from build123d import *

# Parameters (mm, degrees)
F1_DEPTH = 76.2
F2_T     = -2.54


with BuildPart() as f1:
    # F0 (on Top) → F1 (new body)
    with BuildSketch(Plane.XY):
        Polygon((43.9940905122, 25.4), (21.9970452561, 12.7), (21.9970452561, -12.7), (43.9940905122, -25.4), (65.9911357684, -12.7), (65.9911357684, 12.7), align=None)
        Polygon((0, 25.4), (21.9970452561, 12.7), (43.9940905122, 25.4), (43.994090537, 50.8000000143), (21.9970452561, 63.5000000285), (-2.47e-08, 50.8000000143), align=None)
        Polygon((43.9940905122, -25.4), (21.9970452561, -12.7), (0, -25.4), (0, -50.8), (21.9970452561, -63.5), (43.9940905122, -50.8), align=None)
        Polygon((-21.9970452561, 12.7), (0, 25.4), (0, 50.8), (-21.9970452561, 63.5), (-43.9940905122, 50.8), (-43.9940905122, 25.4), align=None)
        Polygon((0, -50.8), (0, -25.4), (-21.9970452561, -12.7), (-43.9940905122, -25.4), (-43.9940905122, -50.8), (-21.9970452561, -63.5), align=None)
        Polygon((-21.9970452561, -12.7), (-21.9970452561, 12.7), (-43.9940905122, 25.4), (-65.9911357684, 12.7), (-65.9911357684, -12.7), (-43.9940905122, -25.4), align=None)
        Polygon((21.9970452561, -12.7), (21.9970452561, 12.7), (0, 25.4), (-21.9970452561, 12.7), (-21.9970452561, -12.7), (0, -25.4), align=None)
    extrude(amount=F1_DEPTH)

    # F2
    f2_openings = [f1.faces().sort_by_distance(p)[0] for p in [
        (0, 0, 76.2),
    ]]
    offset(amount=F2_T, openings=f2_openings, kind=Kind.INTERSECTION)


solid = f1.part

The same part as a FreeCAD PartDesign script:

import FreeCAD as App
import Part
import Sketcher
from FreeCAD import Vector
Q = App.Units.Quantity


def faces_at(feature, points):
    """Names of the faces that lie closest to the given points."""
    faces = feature.Shape.Faces
    near = lambda p: min(range(len(faces)), key=lambda i: faces[i].distToShape(Part.Vertex(*p))[0])
    return sorted({f"Face{near(p) + 1}" for p in points})

doc = App.newDocument("Part")
body = doc.addObject("PartDesign::Body", "Body")

# Sketch on XY plane
sketch1 = doc.addObject("Sketcher::SketchObject", "Sketch")
body.addObject(sketch1)
sketch1.AttachmentSupport = (doc.XY_Plane, [""])
sketch1.MapMode = "FlatFace"
sketch1.addGeometry(Part.LineSegment(Vector(-44, -25, 0), Vector(-44, -51, 0)), False)
sketch1.addGeometry(Part.LineSegment(Vector(-44, -51, 0), Vector(-22, -64, 0)), False)
sketch1.addGeometry(Part.LineSegment(Vector(-22, -64, 0), Vector(0, -51, 0)), False)
sketch1.addGeometry(Part.LineSegment(Vector(0, -51, 0), Vector(22, -64, 0)), False)
sketch1.addGeometry(Part.LineSegment(Vector(22, -64, 0), Vector(44, -51, 0)), False)
sketch1.addGeometry(Part.LineSegment(Vector(44, -51, 0), Vector(44, -25, 0)), False)
sketch1.addGeometry(Part.LineSegment(Vector(44, -25, 0), Vector(66, -13, 0)), False)
sketch1.addGeometry(Part.LineSegment(Vector(66, -13, 0), Vector(66, 13, 0)), False)
sketch1.addGeometry(Part.LineSegment(Vector(66, 13, 0), Vector(44, 25, 0)), False)
sketch1.addGeometry(Part.LineSegment(Vector(44, 25, 0), Vector(44, 51, 0)), False)
sketch1.addGeometry(Part.LineSegment(Vector(44, 51, 0), Vector(22, 64, 0)), False)
sketch1.addGeometry(Part.LineSegment(Vector(22, 64, 0), Vector(0, 51, 0)), False)
sketch1.addGeometry(Part.LineSegment(Vector(0, 51, 0), Vector(-22, 64, 0)), False)
sketch1.addGeometry(Part.LineSegment(Vector(-22, 64, 0), Vector(-44, 51, 0)), False)
sketch1.addGeometry(Part.LineSegment(Vector(-44, 51, 0), Vector(-44, 25, 0)), False)
sketch1.addGeometry(Part.LineSegment(Vector(-44, 25, 0), Vector(-66, 13, 0)), False)
sketch1.addGeometry(Part.LineSegment(Vector(-66, 13, 0), Vector(-66, -13, 0)), False)
sketch1.addGeometry(Part.LineSegment(Vector(-66, -13, 0), Vector(-44, -25, 0)), False)
sketch1.addConstraint(Sketcher.Constraint("Coincident", 0, 2, 1, 1))
sketch1.addConstraint(Sketcher.Constraint("Coincident", 1, 2, 2, 1))
sketch1.addConstraint(Sketcher.Constraint("Coincident", 2, 2, 3, 1))
sketch1.addConstraint(Sketcher.Constraint("Coincident", 3, 2, 4, 1))
sketch1.addConstraint(Sketcher.Constraint("Coincident", 4, 2, 5, 1))
sketch1.addConstraint(Sketcher.Constraint("Coincident", 5, 2, 6, 1))
sketch1.addConstraint(Sketcher.Constraint("Coincident", 6, 2, 7, 1))
sketch1.addConstraint(Sketcher.Constraint("Coincident", 7, 2, 8, 1))
sketch1.addConstraint(Sketcher.Constraint("Coincident", 8, 2, 9, 1))
sketch1.addConstraint(Sketcher.Constraint("Coincident", 9, 2, 10, 1))
sketch1.addConstraint(Sketcher.Constraint("Coincident", 10, 2, 11, 1))
sketch1.addConstraint(Sketcher.Constraint("Coincident", 11, 2, 12, 1))
sketch1.addConstraint(Sketcher.Constraint("Coincident", 12, 2, 13, 1))
sketch1.addConstraint(Sketcher.Constraint("Coincident", 13, 2, 14, 1))
sketch1.addConstraint(Sketcher.Constraint("Coincident", 14, 2, 15, 1))
sketch1.addConstraint(Sketcher.Constraint("Coincident", 15, 2, 16, 1))
sketch1.addConstraint(Sketcher.Constraint("Coincident", 16, 2, 17, 1))
sketch1.addConstraint(Sketcher.Constraint("Coincident", 17, 2, 0, 1))
sketch1.addConstraint(Sketcher.Constraint("Vertical", 0))
sketch1.addConstraint(Sketcher.Constraint("Vertical", 5))
sketch1.addConstraint(Sketcher.Constraint("Vertical", 7))
sketch1.addConstraint(Sketcher.Constraint("Vertical", 9))
sketch1.addConstraint(Sketcher.Constraint("Vertical", 14))
sketch1.addConstraint(Sketcher.Constraint("Vertical", 16))
sketch1.addConstraint(Sketcher.Constraint("Symmetric", 0, 2, 9, 2, -1, 1))
sketch1.addConstraint(Sketcher.Constraint("Symmetric", 1, 2, 10, 2, -1, 1))
sketch1.addConstraint(Sketcher.Constraint("Symmetric", 2, 2, 11, 2, -1, 1))
sketch1.addConstraint(Sketcher.Constraint("Symmetric", 3, 2, 12, 2, -1, 1))
sketch1.addConstraint(Sketcher.Constraint("Symmetric", 4, 2, 13, 2, -1, 1))
sketch1.addConstraint(Sketcher.Constraint("Symmetric", 6, 2, 15, 2, -1, 1))
sketch1.addConstraint(Sketcher.Constraint("Symmetric", 1, 2, 3, 2, -2))
sketch1.addConstraint(Sketcher.Constraint("Symmetric", 0, 2, 4, 2, -2))
sketch1.addConstraint(Sketcher.Constraint("PointOnObject", 2, 2, -2))
sketch1.addConstraint(Sketcher.Constraint("Parallel", 1, 3))
sketch1.addConstraint(Sketcher.Constraint("Parallel", 4, 6))
sketch1.addConstraint(Sketcher.Constraint("Parallel", 3, 8))
sketch1.addConstraint(Sketcher.Constraint("Parallel", 13, 15))
sketch1.addConstraint(Sketcher.Constraint("Parallel", 12, 17))
sketch1.addConstraint(Sketcher.Constraint("Horizontal", 0, 2, 2, 2))
sketch1.addConstraint(Sketcher.Constraint("Horizontal", 8, 2, 14, 2))
sketch1.addConstraint(Sketcher.Constraint("Horizontal", 6, 2, 16, 2))
sketch1.addConstraint(Sketcher.Constraint("Equal", 5, 7))
sketch1.addConstraint(Sketcher.Constraint("Equal", 4, 6))
sketch1.addConstraint(Sketcher.Constraint("DistanceY", 0, 2, 0, 1, Q("1 in")))
sketch1.addConstraint(Sketcher.Constraint("Distance", 1, Q("1 in")))
sketch1.addConstraint(Sketcher.Constraint("DistanceY", 0, 2, -1, 1, Q("2 in")))
pad1 = doc.addObject("PartDesign::Pad", "Pad")
body.addObject(pad1)
pad1.Profile = sketch1
pad1.Length = Q("3 in")
doc.recompute()

thickness = doc.addObject("PartDesign::Thickness", "Thickness")
body.addObject(thickness)
thickness.Base = (pad1, faces_at(pad1, [(0, 0, 76.2)]))
thickness.Value = Q("0.1 in")
thickness.Reversed = True
thickness.Join = "Intersection"

doc.recompute()
